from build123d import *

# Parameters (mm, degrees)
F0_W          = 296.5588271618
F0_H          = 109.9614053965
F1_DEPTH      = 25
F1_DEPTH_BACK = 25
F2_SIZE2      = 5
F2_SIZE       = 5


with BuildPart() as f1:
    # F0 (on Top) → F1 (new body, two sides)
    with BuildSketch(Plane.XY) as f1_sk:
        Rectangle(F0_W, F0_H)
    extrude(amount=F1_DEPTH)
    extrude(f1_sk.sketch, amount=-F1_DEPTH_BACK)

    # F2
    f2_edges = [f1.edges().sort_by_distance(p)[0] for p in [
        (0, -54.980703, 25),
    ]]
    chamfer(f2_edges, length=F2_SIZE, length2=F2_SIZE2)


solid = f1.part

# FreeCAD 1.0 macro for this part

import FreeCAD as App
import Part
import Sketcher
Q = App.Units.Quantity


def edges_at(feature, points):
    """Names of the edges that pass closest to the given points."""
    edges = feature.Shape.Edges
    near = lambda p: min(range(len(edges)), key=lambda i: edges[i].distToShape(Part.Vertex(*p))[0])
    return sorted({f"Edge{near(p) + 1}" for p in points})

doc = App.newDocument("Part")
body = doc.addObject("PartDesign::Body", "Body")

sketch1 = doc.addObject("Sketcher::SketchObject", "Sketch")
body.addObject(sketch1)
sketch1.AttachmentSupport = (doc.XY_Plane, [""])
sketch1.MapMode = "FlatFace"
sketch1.addGeometry([
    Part.LineSegment(App.Vector(-148.279414, 54.980703, 0), App.Vector(-148.279414, -54.980703, 0)),
    Part.LineSegment(App.Vector(-148.279414, -54.980703, 0), App.Vector(148.279414, -54.980703, 0)),
    Part.LineSegment(App.Vector(148.279414, -54.980703, 0), App.Vector(148.279414, 54.980703, 0)),
    Part.LineSegment(App.Vector(148.279414, 54.980703, 0), App.Vector(-148.279414, 54.980703, 0)),
], False)
sketch1.addConstraint([
    Sketcher.Constraint("Coincident", 0, 2, 1, 1),
    Sketcher.Constraint("Coincident", 1, 2, 2, 1),
    Sketcher.Constraint("Coincident", 2, 2, 3, 1),
    Sketcher.Constraint("Coincident", 3, 2, 0, 1),
    Sketcher.Constraint("Vertical", 0),
    Sketcher.Constraint("Horizontal", 1),
    Sketcher.Constraint("Vertical", 2),
    Sketcher.Constraint("Horizontal", 3),
    Sketcher.Constraint("Symmetric", 0, 2, 2, 2, -1, 1),
    Sketcher.Constraint("DistanceX", 1, 1, 1, 2, Q("296.558827 mm")),
    Sketcher.Constraint("DistanceY", 0, 2, 0, 1, Q("109.961405 mm")),
])
pad1 = doc.addObject("PartDesign::Pad", "Pad")
body.addObject(pad1)
pad1.Profile = sketch1
pad1.Type = "TwoLengths"
pad1.Length = 25
pad1.Length2 = 25
doc.recompute()

chamfer = doc.addObject("PartDesign::Chamfer", "Chamfer")
body.addObject(chamfer)
chamfer.Base = (pad1, edges_at(pad1, [(0, -54.981, 25)]))
chamfer.ChamferType = "Two distances"
chamfer.Size = 5
chamfer.Size2 = 5

doc.recompute()
